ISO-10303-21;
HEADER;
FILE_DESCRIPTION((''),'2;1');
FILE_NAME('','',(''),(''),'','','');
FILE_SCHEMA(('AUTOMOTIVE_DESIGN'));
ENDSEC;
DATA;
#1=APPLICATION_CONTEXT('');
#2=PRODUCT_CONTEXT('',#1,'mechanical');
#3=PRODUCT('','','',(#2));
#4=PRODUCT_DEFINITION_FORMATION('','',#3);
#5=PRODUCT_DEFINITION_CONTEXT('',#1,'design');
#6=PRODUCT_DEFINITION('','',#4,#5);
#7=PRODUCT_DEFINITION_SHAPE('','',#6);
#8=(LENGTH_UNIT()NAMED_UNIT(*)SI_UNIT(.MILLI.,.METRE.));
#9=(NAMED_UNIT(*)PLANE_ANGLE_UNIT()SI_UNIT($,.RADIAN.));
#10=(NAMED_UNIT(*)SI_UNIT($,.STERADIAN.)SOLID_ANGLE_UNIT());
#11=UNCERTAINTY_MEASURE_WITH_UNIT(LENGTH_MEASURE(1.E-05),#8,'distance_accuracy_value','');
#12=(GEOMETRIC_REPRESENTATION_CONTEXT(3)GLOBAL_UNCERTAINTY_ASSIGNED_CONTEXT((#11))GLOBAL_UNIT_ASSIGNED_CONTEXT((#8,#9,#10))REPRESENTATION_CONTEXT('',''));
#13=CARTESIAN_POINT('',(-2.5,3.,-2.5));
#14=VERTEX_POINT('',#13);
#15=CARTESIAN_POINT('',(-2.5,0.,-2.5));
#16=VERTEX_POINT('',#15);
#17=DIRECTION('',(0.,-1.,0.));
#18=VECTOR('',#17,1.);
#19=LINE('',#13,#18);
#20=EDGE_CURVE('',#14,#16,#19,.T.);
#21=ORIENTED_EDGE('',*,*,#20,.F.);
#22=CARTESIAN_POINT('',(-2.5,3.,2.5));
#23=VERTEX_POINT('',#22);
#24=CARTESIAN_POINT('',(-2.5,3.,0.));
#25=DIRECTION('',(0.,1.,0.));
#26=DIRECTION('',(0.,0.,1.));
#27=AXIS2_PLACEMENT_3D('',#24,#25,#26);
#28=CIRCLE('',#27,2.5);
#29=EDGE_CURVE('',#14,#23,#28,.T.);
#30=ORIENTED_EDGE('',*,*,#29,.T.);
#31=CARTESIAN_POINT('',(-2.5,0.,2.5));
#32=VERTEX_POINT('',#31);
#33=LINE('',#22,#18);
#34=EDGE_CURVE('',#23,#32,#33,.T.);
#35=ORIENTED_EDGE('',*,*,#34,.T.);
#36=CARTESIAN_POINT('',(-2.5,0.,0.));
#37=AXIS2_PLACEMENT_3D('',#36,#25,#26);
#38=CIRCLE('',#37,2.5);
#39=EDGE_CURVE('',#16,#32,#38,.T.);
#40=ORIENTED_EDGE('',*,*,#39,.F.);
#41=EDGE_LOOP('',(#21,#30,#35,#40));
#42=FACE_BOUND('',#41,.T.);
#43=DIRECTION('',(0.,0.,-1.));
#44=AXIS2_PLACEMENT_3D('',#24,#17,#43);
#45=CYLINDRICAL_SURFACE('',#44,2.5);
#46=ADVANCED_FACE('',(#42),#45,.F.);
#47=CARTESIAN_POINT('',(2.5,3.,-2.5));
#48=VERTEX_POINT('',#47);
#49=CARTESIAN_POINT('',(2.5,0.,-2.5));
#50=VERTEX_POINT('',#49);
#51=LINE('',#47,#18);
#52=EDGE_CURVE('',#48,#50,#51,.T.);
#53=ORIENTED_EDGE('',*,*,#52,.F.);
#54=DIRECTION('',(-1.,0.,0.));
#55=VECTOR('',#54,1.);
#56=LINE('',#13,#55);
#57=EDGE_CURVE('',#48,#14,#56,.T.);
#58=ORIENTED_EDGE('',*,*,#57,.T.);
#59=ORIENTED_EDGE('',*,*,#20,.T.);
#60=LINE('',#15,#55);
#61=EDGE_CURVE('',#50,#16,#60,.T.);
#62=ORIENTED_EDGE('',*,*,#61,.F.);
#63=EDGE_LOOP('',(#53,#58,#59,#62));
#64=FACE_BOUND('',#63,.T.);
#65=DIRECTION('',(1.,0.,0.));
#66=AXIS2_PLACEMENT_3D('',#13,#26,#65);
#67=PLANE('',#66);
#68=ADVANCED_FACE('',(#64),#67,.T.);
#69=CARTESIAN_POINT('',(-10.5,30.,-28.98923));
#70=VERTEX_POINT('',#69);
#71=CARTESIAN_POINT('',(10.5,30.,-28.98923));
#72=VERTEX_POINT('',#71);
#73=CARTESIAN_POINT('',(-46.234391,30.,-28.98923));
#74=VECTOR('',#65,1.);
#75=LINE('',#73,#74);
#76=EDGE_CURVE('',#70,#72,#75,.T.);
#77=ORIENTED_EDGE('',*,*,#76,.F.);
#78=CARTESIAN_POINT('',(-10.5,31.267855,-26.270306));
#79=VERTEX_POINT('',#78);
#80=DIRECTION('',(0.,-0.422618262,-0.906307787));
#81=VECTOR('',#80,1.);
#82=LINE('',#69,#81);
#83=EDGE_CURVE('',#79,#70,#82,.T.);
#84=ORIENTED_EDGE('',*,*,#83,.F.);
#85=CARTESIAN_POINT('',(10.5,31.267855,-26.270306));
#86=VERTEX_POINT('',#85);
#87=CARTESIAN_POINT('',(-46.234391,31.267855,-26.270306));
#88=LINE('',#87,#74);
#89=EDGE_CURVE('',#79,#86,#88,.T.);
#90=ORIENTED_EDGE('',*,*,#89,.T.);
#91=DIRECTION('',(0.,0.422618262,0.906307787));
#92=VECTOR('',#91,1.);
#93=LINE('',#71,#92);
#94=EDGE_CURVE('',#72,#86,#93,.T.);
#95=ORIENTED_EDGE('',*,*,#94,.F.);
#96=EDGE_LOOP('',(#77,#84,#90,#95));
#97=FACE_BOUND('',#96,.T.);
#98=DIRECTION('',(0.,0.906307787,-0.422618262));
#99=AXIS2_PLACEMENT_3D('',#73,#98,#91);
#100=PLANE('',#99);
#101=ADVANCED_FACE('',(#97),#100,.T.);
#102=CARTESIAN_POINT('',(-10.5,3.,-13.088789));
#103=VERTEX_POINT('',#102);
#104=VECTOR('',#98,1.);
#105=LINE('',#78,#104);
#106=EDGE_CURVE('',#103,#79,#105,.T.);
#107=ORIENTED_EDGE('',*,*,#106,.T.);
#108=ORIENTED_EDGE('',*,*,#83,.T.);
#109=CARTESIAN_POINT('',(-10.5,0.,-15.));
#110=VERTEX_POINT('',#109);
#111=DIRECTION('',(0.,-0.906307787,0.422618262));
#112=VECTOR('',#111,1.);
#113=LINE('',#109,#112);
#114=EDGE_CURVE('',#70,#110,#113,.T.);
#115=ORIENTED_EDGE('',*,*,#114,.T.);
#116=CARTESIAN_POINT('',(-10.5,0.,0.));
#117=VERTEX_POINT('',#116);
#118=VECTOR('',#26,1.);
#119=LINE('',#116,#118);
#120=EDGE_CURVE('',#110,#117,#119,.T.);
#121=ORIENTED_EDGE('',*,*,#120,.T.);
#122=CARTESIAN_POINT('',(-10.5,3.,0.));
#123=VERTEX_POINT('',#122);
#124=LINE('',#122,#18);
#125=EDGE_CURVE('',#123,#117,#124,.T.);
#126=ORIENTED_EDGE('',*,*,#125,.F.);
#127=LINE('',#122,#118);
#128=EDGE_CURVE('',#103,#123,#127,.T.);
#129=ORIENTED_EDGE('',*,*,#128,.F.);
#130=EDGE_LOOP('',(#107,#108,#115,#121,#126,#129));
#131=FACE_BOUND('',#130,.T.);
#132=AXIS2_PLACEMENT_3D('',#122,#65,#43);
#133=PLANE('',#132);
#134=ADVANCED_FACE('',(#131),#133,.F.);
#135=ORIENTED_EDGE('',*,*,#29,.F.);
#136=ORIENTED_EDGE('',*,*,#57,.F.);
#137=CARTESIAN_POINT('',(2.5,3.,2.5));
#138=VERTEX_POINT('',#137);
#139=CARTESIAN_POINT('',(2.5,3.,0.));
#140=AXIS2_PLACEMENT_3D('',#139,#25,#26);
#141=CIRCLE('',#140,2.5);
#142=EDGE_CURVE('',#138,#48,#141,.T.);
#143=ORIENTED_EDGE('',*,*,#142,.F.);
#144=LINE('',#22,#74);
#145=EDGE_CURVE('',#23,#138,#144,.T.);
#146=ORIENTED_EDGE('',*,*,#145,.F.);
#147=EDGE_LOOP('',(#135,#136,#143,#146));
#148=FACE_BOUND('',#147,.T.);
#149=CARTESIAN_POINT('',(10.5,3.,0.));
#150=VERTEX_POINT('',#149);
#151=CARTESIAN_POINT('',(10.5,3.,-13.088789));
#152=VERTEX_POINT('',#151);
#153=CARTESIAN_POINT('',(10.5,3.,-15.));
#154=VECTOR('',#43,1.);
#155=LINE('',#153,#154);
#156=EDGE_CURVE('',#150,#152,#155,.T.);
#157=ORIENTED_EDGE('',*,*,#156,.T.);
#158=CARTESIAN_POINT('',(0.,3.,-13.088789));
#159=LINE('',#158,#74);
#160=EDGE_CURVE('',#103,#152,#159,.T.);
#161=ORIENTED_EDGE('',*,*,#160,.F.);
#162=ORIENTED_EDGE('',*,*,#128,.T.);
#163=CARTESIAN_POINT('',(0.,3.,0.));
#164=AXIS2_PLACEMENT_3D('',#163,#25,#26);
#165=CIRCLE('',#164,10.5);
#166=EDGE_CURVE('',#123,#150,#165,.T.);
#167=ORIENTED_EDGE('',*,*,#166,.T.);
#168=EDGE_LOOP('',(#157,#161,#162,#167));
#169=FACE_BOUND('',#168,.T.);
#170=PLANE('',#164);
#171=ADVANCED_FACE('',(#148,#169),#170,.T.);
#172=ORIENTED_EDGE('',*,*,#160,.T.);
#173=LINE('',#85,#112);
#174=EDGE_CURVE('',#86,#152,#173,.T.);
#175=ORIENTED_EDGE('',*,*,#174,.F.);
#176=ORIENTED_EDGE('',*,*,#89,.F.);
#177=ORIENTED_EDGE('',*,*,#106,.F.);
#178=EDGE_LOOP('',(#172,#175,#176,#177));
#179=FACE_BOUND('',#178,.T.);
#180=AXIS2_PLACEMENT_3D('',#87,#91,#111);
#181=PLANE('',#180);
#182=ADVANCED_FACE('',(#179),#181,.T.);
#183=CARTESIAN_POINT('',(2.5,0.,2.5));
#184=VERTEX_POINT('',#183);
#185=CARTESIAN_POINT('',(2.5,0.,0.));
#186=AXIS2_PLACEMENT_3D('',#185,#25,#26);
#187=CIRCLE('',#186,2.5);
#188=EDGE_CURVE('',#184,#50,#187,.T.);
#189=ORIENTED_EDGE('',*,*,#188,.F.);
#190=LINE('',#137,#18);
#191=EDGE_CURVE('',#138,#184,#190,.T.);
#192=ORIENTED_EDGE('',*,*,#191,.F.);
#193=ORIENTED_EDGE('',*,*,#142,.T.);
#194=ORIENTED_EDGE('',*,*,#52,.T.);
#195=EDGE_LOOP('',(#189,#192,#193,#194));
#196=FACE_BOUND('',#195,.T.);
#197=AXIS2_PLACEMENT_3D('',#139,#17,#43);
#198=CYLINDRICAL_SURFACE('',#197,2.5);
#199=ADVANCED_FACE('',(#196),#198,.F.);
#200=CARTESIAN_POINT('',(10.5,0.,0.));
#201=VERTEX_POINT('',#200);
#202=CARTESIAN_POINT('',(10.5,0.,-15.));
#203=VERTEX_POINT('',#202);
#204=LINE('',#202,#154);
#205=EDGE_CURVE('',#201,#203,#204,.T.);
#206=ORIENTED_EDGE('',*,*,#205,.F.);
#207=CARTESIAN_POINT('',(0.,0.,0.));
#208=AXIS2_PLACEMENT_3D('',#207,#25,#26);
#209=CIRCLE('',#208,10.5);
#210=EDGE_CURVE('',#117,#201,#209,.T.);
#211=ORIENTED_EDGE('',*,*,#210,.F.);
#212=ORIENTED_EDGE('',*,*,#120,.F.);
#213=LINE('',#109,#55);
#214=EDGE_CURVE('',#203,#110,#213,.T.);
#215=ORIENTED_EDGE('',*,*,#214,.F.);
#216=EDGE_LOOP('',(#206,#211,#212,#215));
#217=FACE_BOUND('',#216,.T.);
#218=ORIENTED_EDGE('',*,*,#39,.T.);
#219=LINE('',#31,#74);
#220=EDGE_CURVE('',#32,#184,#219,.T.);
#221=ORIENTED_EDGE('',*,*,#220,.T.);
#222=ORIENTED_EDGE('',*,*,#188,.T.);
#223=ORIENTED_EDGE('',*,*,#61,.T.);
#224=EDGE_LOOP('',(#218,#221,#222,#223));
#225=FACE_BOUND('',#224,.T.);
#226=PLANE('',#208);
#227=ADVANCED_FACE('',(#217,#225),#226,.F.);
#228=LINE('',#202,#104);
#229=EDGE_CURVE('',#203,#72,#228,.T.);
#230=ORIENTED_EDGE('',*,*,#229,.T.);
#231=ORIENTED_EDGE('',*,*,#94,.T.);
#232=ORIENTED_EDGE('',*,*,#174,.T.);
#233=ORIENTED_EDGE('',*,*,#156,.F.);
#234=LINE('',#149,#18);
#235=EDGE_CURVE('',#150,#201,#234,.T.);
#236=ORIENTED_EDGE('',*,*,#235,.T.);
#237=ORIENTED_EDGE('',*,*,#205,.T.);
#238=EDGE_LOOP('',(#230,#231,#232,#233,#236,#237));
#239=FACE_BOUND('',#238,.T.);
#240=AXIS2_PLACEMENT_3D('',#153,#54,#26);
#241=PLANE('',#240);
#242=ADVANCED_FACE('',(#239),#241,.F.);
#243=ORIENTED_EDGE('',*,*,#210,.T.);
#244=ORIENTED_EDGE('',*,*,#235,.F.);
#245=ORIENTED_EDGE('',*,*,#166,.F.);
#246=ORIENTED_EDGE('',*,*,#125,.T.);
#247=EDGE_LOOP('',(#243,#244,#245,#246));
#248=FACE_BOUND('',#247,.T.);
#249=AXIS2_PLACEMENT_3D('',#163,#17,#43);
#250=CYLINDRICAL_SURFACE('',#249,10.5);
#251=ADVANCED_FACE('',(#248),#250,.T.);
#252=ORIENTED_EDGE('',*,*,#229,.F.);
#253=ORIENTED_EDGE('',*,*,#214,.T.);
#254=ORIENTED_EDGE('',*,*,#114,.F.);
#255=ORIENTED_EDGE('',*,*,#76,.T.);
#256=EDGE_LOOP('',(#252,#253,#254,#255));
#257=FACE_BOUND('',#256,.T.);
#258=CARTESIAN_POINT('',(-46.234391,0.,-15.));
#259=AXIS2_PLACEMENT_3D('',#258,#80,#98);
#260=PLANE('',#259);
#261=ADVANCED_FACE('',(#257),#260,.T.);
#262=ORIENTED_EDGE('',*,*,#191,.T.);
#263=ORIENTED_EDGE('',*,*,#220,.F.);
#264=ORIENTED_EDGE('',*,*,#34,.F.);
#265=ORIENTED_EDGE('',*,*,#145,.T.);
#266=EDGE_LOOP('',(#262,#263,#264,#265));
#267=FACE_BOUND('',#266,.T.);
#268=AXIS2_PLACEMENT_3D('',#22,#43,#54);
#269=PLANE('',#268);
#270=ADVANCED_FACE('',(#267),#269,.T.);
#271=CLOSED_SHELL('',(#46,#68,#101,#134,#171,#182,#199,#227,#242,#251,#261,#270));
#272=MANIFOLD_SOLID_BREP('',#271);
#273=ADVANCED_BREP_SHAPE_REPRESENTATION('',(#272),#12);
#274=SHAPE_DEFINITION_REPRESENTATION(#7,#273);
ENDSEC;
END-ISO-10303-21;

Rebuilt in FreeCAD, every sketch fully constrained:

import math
import FreeCAD as App
import Part
import Sketcher

V = App.Vector
Q = App.Units.Quantity

doc = App.newDocument("Part")
body = doc.addObject("PartDesign::Body", "Body")

# Sketch on XZ plane
sketch1 = body.newObject("Sketcher::SketchObject", "Sketch")
sketch1.AttachmentSupport = (doc.getObject("XZ_Plane"), [""])
sketch1.MapMode = "FlatFace"
sketch1.addGeometry([
    Part.LineSegment(V(-10.5, -15, 0), V(-10.5, 0, 0)),  # 0
    Part.ArcOfCircle(Part.Circle(V(0, 0, 0), V(0, 0, 1), 10.5), math.radians(0), math.radians(180)),  # 1
    Part.LineSegment(V(10.5, 0, 0), V(10.5, -15, 0)),  # 2
    Part.LineSegment(V(10.5, -15, 0), V(-10.5, -15, 0)),  # 3
    Part.LineSegment(V(-2.5, -2.5, 0), V(2.5, -2.5, 0)),  # 4
    Part.ArcOfCircle(Part.Circle(V(2.5, 0, 0), V(0, 0, 1), 2.5), math.radians(-90), math.radians(90)),  # 5
    Part.LineSegment(V(2.5, 2.5, 0), V(-2.5, 2.5, 0)),  # 6
    Part.ArcOfCircle(Part.Circle(V(-2.5, 0, 0), V(0, 0, 1), 2.5), math.radians(90), math.radians(270)),  # 7
], False)
sketch1.addConstraint([
    Sketcher.Constraint("Tangent", 0, 2, 1, 2),
    Sketcher.Constraint("Tangent", 1, 1, 2, 1),
    Sketcher.Constraint("Coincident", 2, 2, 3, 1),
    Sketcher.Constraint("Coincident", 3, 2, 0, 1),
    Sketcher.Constraint("Tangent", 4, 2, 5, 1),
    Sketcher.Constraint("Tangent", 5, 2, 6, 1),
    Sketcher.Constraint("Tangent", 6, 2, 7, 1),
    Sketcher.Constraint("Tangent", 7, 2, 4, 1),
    Sketcher.Constraint("Vertical", 0),
    Sketcher.Constraint("Vertical", 2),
    Sketcher.Constraint("Horizontal", 3),
    Sketcher.Constraint("Horizontal", 4),
    Sketcher.Constraint("Horizontal", 6),
    Sketcher.Constraint("Coincident", 1, 3, -1, 1),
    Sketcher.Constraint("Symmetric", 5, 3, 7, 3, -1, 1),
    Sketcher.Constraint("Radius", 1, 10.5),
    Sketcher.Constraint("Radius", 5, 2.5),
    Sketcher.Constraint("DistanceX", 4, 1, 4, 2, 5.0),
    Sketcher.Constraint("DistanceY", 0, 1, 0, 2, 15.0),
])
pad1 = body.newObject("PartDesign::Pad", "Pad")
pad1.Profile = sketch1
pad1.Length = 3
pad1.Reversed = True

# Sketch on YZ plane
sketch2 = body.newObject("Sketcher::SketchObject", "Sketch001")
sketch2.AttachmentSupport = (doc.getObject("YZ_Plane"), [""])
sketch2.MapMode = "FlatFace"
sketch2.AttachmentOffset = App.Placement(V(0, 0, 10.5), App.Rotation())
sketch2.addGeometry([
    Part.LineSegment(V(0, -15, 0), V(30, -29, 0)),
    Part.LineSegment(V(30, -29, 0), V(31.3, -26.3, 0)),
    Part.LineSegment(V(31.3, -26.3, 0), V(0, -11.7, 0)),
    Part.LineSegment(V(0, -11.7, 0), V(0, -15, 0)),
], False)
sketch2.addConstraint([
    Sketcher.Constraint("Coincident", 0, 2, 1, 1),
    Sketcher.Constraint("Coincident", 1, 2, 2, 1),
    Sketcher.Constraint("Coincident", 2, 2, 3, 1),
    Sketcher.Constraint("Coincident", 3, 2, 0, 1),
    Sketcher.Constraint("Vertical", 3),
    Sketcher.Constraint("PointOnObject", 2, 2, -2),
    Sketcher.Constraint("Perpendicular", 0, 1),
    Sketcher.Constraint("Perpendicular", 1, 2),
    Sketcher.Constraint("Angle", 0, Q("-25 deg")),
    Sketcher.Constraint("Distance", 1, 3.0),
    Sketcher.Constraint("DistanceX", -1, 1, 0, 2, 30.0),
    Sketcher.Constraint("DistanceY", 3, 2, -1, 1, 15.0),
])
pad2 = body.newObject("PartDesign::Pad", "Pad001")
pad2.Profile = sketch2
pad2.Length = 21
pad2.Reversed = True

doc.recompute()
